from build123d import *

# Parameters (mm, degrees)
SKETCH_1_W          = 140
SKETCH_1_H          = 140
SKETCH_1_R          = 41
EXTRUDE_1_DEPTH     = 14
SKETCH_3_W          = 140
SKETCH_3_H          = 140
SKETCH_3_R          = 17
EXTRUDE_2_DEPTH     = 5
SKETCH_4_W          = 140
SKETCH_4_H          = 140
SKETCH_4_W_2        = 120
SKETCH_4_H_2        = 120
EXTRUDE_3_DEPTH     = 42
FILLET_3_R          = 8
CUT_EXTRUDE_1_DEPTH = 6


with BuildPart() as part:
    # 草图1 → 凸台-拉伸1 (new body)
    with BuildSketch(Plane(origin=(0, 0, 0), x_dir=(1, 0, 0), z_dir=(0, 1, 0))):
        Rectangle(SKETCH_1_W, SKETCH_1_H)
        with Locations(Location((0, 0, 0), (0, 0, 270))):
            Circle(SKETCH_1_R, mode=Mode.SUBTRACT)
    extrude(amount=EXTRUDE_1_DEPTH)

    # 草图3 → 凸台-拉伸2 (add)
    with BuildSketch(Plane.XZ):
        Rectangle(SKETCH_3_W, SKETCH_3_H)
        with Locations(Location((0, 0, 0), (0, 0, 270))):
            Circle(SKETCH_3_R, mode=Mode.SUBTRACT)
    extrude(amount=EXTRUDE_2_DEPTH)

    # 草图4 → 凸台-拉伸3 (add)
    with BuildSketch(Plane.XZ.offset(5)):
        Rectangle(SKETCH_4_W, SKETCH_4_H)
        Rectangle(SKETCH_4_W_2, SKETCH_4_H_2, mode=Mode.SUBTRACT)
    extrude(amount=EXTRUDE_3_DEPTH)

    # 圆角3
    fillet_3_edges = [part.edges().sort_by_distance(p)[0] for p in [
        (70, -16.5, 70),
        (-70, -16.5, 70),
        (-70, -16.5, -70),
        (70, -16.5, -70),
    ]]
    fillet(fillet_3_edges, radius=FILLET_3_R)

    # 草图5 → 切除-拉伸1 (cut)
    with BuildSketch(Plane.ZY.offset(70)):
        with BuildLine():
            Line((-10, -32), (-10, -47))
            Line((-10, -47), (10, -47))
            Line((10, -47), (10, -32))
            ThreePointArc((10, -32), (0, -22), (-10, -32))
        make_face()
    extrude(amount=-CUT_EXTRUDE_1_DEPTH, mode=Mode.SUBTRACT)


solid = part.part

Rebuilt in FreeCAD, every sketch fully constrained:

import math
import FreeCAD as App
import Part
import Sketcher
Q = App.Units.Quantity


def edges_at(feature, points):
    """Names of the edges that pass closest to the given points."""
    edges = feature.Shape.Edges
    near = lambda p: min(range(len(edges)), key=lambda i: edges[i].distToShape(Part.Vertex(*p))[0])
    return sorted({f"Edge{near(p) + 1}" for p in points})


def add_polygon(sketch, points):
    """Adds a closed chain of lines whose ends are joined by coincident constraints."""
    first, n = sketch.GeometryCount, len(points)
    for a, b in zip(points, points[1:] + points[:1]):
        sketch.addGeometry(Part.LineSegment(App.Vector(*a, 0), App.Vector(*b, 0)), False)
    for i in range(n):
        sketch.addConstraint(Sketcher.Constraint("Coincident", first + i, 2, first + (i + 1) % n, 1))

doc = App.newDocument("Part")
body = doc.addObject("PartDesign::Body", "Body")

sketch1 = doc.addObject("Sketcher::SketchObject", "Sketch")
body.addObject(sketch1)
sketch1.AttachmentSupport = (doc.XZ_Plane, [""])
sketch1.MapMode = "FlatFace"
add_polygon(sketch1, [(-70, -70), (-70, 70), (70, 70), (70, -70)])
sketch1.addGeometry(Part.Circle(App.Vector(0, 0, 0), App.Vector(0, 0, 1), 41), False)
sketch1.addConstraint([
    Sketcher.Constraint("Vertical", 0),
    Sketcher.Constraint("Horizontal", 1),
    Sketcher.Constraint("Vertical", 2),
    Sketcher.Constraint("Horizontal", 3),
    Sketcher.Constraint("Coincident", 4, 3, -1, 1),
    Sketcher.Constraint("Symmetric", 0, 2, 2, 2, -1, 1),
    Sketcher.Constraint("Equal", 3, 0),
    Sketcher.Constraint("Diameter", 4, Q("82 mm")),
    Sketcher.Constraint("DistanceX", 1, 1, 1, 2, Q("140 mm")),
])
pad1 = doc.addObject("PartDesign::Pad", "Pad")
body.addObject(pad1)
pad1.Profile = sketch1
pad1.Length = 14
pad1.Reversed = True

sketch2 = doc.addObject("Sketcher::SketchObject", "Sketch001")
body.addObject(sketch2)
sketch2.AttachmentSupport = (doc.XZ_Plane, [""])
sketch2.MapMode = "FlatFace"
add_polygon(sketch2, [(-70, 70), (-70, -70), (70, -70), (70, 70)])
sketch2.addGeometry(Part.Circle(App.Vector(0, 0, 0), App.Vector(0, 0, 1), 17), False)
sketch2.addConstraint([
    Sketcher.Constraint("Vertical", 0),
    Sketcher.Constraint("Horizontal", 1),
    Sketcher.Constraint("Vertical", 2),
    Sketcher.Constraint("Horizontal", 3),
    Sketcher.Constraint("Coincident", 4, 3, -1, 1),
    Sketcher.Constraint("Symmetric", 0, 2, 2, 2, -1, 1),
    Sketcher.Constraint("Equal", 3, 0),
    Sketcher.Constraint("Diameter", 4, Q("34 mm")),
    Sketcher.Constraint("DistanceX", 1, 1, 1, 2, Q("140 mm")),
])
pad2 = doc.addObject("PartDesign::Pad", "Pad001")
body.addObject(pad2)
pad2.Profile = sketch2
pad2.Length = 5

sketch3 = doc.addObject("Sketcher::SketchObject", "Sketch002")
body.addObject(sketch3)
sketch3.AttachmentSupport = (doc.XZ_Plane, [""])
sketch3.MapMode = "FlatFace"
sketch3.AttachmentOffset = App.Placement(App.Vector(0, 0, 5), App.Rotation())
add_polygon(sketch3, [(-70, 70), (-70, -70), (70, -70), (70, 70)])
add_polygon(sketch3, [(60, -60), (-60, -60), (-60, 60), (60, 60)])
sketch3.addConstraint([
    Sketcher.Constraint("Vertical", 0),
    Sketcher.Constraint("Horizontal", 1),
    Sketcher.Constraint("Vertical", 2),
    Sketcher.Constraint("Horizontal", 3),
    Sketcher.Constraint("Horizontal", 4),
    Sketcher.Constraint("Vertical", 5),
    Sketcher.Constraint("Horizontal", 6),
    Sketcher.Constraint("Vertical", 7),
    Sketcher.Constraint("Symmetric", 0, 2, 2, 2, -1, 1),
    Sketcher.Constraint("Symmetric", 4, 2, 6, 2, -1, 1),
    Sketcher.Constraint("Equal", 3, 0),
    Sketcher.Constraint("Equal", 6, 5),
    Sketcher.Constraint("DistanceX", 1, 1, 1, 2, Q("140 mm")),
    Sketcher.Constraint("DistanceX", 4, 2, 4, 1, Q("120 mm")),
])
pad3 = doc.addObject("PartDesign::Pad", "Pad002")
body.addObject(pad3)
pad3.Profile = sketch3
pad3.Length = 42
doc.recompute()

fillet = doc.addObject("PartDesign::Fillet", "Fillet")
body.addObject(fillet)
fillet.Base = (pad3, edges_at(pad3, [
    (70, -16.5, 70),
    (-70, -16.5, 70),
    (-70, -16.5, -70),
    (70, -16.5, -70),
]))
fillet.Radius = 8

sketch4 = doc.addObject("Sketcher::SketchObject", "Sketch003")
body.addObject(sketch4)
sketch4.AttachmentSupport = (doc.YZ_Plane, [""])
sketch4.MapMode = "FlatFace"
sketch4.AttachmentOffset = App.Placement(App.Vector(0, 0, -70), App.Rotation())
sketch4.addGeometry([
    Part.LineSegment(App.Vector(-32, -10, 0), App.Vector(-47, -10, 0)),
    Part.LineSegment(App.Vector(-47, -10, 0), App.Vector(-47, 10, 0)),
    Part.LineSegment(App.Vector(-47, 10, 0), App.Vector(-32, 10, 0)),
    Part.ArcOfCircle(Part.Circle(App.Vector(-32, 0, 0), App.Vector(0, 0, 1), 10), math.radians(-90), math.radians(90)),
], False)
sketch4.addConstraint([
    Sketcher.Constraint("Coincident", 0, 2, 1, 1),
    Sketcher.Constraint("Coincident", 1, 2, 2, 1),
    Sketcher.Constraint("Tangent", 2, 2, 3, 2),
    Sketcher.Constraint("Tangent", 3, 1, 0, 1),
    Sketcher.Constraint("Horizontal", 0),
    Sketcher.Constraint("Vertical", 1),
    Sketcher.Constraint("Horizontal", 2),
    Sketcher.Constraint("PointOnObject", 3, 3, -1),
    Sketcher.Constraint("Radius", 3, Q("10 mm")),
    Sketcher.Constraint("DistanceX", 0, 2, 0, 1, Q("15 mm")),
    Sketcher.Constraint("DistanceX", 3, 3, -1, 1, Q("32 mm")),
])
pocket1 = doc.addObject("PartDesign::Pocket", "Pocket")
body.addObject(pocket1)
pocket1.Profile = sketch4
pocket1.Length = 6
pocket1.Reversed = True

doc.recompute()
